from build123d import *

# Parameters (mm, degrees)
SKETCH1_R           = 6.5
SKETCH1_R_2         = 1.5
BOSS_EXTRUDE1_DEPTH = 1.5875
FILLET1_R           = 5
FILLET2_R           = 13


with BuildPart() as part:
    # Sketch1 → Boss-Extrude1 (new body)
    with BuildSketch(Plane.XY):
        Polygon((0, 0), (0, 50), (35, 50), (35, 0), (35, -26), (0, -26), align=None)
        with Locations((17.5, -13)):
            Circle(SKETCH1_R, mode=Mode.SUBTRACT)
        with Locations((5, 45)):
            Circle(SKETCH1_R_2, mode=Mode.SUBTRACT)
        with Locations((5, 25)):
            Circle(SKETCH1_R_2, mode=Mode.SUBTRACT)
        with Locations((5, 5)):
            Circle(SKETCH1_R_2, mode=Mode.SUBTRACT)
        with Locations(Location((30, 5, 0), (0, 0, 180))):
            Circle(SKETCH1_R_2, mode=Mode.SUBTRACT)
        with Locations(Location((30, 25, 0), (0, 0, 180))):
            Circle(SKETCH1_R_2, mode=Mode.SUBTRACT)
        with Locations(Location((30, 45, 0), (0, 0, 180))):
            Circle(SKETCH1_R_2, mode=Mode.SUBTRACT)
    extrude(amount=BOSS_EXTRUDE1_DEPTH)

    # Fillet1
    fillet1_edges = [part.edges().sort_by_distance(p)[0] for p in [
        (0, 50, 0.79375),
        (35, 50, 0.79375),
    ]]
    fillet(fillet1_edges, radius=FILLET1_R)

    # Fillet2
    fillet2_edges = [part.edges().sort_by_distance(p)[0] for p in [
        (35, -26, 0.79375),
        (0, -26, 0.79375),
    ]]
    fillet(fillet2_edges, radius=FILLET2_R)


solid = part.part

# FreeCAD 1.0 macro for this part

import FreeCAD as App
import Part
import Sketcher
Q = App.Units.Quantity


def edges_at(feature, points):
    """Names of the edges that pass closest to the given points."""
    edges = feature.Shape.Edges
    near = lambda p: min(range(len(edges)), key=lambda i: edges[i].distToShape(Part.Vertex(*p))[0])
    return sorted({f"Edge{near(p) + 1}" for p in points})


def add_polygon(sketch, points):
    """Adds a closed chain of lines whose ends are joined by coincident constraints."""
    first, n = sketch.GeometryCount, len(points)
    for a, b in zip(points, points[1:] + points[:1]):
        sketch.addGeometry(Part.LineSegment(App.Vector(*a, 0), App.Vector(*b, 0)), False)
    for i in range(n):
        sketch.addConstraint(Sketcher.Constraint("Coincident", first + i, 2, first + (i + 1) % n, 1))

doc = App.newDocument("Part")
body = doc.addObject("PartDesign::Body", "Body")

# Sketch on XY plane
sketch1 = body.newObject("Sketcher::SketchObject", "Sketch")
sketch1.AttachmentSupport = (doc.getObject("XY_Plane"), [""])
sketch1.MapMode = "FlatFace"
add_polygon(sketch1, [(0, 50), (0, -26), (35, -26), (35, 50)])  # lines 0-3
sketch1.addGeometry(Part.Circle(App.Vector(30, 5, 0), App.Vector(0, 0, 1), 1.5), False)  # 4
sketch1.addGeometry(Part.Circle(App.Vector(17.5, -13, 0), App.Vector(0, 0, 1), 6.5), False)  # 5
sketch1.addGeometry(Part.Circle(App.Vector(5, 5, 0), App.Vector(0, 0, 1), 1.5), False)  # 6
sketch1.addGeometry(Part.Circle(App.Vector(30, 25, 0), App.Vector(0, 0, 1), 1.5), False)  # 7
sketch1.addGeometry(Part.Circle(App.Vector(30, 45, 0), App.Vector(0, 0, 1), 1.5), False)  # 8
sketch1.addGeometry(Part.Circle(App.Vector(5, 25, 0), App.Vector(0, 0, 1), 1.5), False)  # 9
sketch1.addGeometry(Part.Circle(App.Vector(5, 45, 0), App.Vector(0, 0, 1), 1.5), False)  # 10
sketch1.addConstraint([
    Sketcher.Constraint("Vertical", 0),
    Sketcher.Constraint("Horizontal", 1),
    Sketcher.Constraint("Vertical", 2),
    Sketcher.Constraint("Horizontal", 3),
    Sketcher.Constraint("Equal", 4, 6),
    Sketcher.Constraint("Equal", 6, 7),
    Sketcher.Constraint("Equal", 7, 8),
    Sketcher.Constraint("Equal", 8, 9),
    Sketcher.Constraint("Equal", 9, 10),
    Sketcher.Constraint("PointOnObject", 0, 2, -2),
    Sketcher.Constraint("Horizontal", 4, 3, 6, 3),
    Sketcher.Constraint("Horizontal", 7, 3, 9, 3),
    Sketcher.Constraint("Horizontal", 8, 3, 10, 3),
    Sketcher.Constraint("Vertical", 4, 3, 7, 3),
    Sketcher.Constraint("Vertical", 7, 3, 8, 3),
    Sketcher.Constraint("Vertical", 6, 3, 9, 3),
    Sketcher.Constraint("Vertical", 9, 3, 10, 3),
    Sketcher.Constraint("Diameter", 4, Q("3 mm")),
    Sketcher.Constraint("Diameter", 5, Q("13 mm")),
    Sketcher.Constraint("DistanceX", 1, 1, 1, 2, Q("35 mm")),
    Sketcher.Constraint("DistanceY", 0, 2, 0, 1, Q("76 mm")),
    Sketcher.Constraint("DistanceX", -1, 1, 4, 3, Q("30 mm")),
    Sketcher.Constraint("DistanceY", -1, 1, 4, 3, Q("5 mm")),
    Sketcher.Constraint("DistanceY", 5, 3, -1, 1, Q("13 mm")),
    Sketcher.Constraint("DistanceX", -1, 1, 6, 3, Q("5 mm")),
    Sketcher.Constraint("DistanceY", -1, 1, 7, 3, Q("25 mm")),
    Sketcher.Constraint("DistanceY", -1, 1, 8, 3, Q("45 mm")),
    Sketcher.Constraint("DistanceY", 0, 2, -1, 1, Q("26 mm")),
    Sketcher.Constraint("DistanceX", -1, 1, 5, 3, Q("17.5 mm")),
])
pad1 = body.newObject("PartDesign::Pad", "Pad")
pad1.Profile = sketch1
pad1.Length = 1.5875
doc.recompute()

fillet = body.newObject("PartDesign::Fillet", "Fillet")
fillet.Base = (pad1, edges_at(pad1, [(0, 50, 0.794), (35, 50, 0.794)]))
fillet.Radius = 5
doc.recompute()

fillet2 = body.newObject("PartDesign::Fillet", "Fillet001")
fillet2.Base = (fillet, edges_at(fillet, [(35, -26, 0.794), (0, -26, 0.794)]))
fillet2.Radius = 13

doc.recompute()
